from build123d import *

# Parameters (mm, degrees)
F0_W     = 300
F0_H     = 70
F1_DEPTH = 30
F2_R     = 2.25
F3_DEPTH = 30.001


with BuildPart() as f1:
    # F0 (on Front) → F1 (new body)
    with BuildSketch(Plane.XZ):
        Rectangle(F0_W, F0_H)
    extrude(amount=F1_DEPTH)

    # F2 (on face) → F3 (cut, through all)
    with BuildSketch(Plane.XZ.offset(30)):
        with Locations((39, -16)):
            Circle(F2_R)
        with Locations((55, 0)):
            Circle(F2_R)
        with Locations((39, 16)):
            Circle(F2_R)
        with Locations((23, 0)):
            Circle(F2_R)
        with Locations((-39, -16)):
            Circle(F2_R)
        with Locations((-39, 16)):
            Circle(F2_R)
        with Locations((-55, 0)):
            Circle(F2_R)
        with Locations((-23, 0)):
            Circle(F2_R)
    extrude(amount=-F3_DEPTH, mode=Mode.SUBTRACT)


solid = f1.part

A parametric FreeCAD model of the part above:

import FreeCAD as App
import Part
import Sketcher

V = App.Vector
Q = App.Units.Quantity


def add_polygon(sketch, points):
    """Adds a closed chain of lines whose ends are joined by coincident constraints."""
    first, n = sketch.GeometryCount, len(points)
    for a, b in zip(points, points[1:] + points[:1]):
        sketch.addGeometry(Part.LineSegment(App.Vector(*a, 0), App.Vector(*b, 0)), False)
    for i in range(n):
        sketch.addConstraint(Sketcher.Constraint("Coincident", first + i, 2, first + (i + 1) % n, 1))

doc = App.newDocument("Part")
body = doc.addObject("PartDesign::Body", "Body")

# Sketch on XZ plane
sketch1 = body.newObject("Sketcher::SketchObject", "Sketch")
sketch1.AttachmentSupport = (doc.getObject("XZ_Plane"), [""])
sketch1.MapMode = "FlatFace"
add_polygon(sketch1, [(-150, 35), (-150, -35), (150, -35), (150, 35)])  # lines 0-3
sketch1.addConstraint([
    Sketcher.Constraint("Vertical", 0),
    Sketcher.Constraint("Horizontal", 1),
    Sketcher.Constraint("Vertical", 2),
    Sketcher.Constraint("Horizontal", 3),
    Sketcher.Constraint("Symmetric", 0, 2, 2, 2, -1, 1),
    Sketcher.Constraint("DistanceX", 1, 1, 1, 2, Q("300 mm")),
    Sketcher.Constraint("DistanceY", 0, 2, 0, 1, Q("70 mm")),
])
pad1 = body.newObject("PartDesign::Pad", "Pad")
pad1.Profile = sketch1
pad1.Length = 30

# Sketch on XZ plane
sketch2 = body.newObject("Sketcher::SketchObject", "Sketch001")
sketch2.AttachmentSupport = (doc.getObject("XZ_Plane"), [""])
sketch2.MapMode = "FlatFace"
sketch2.AttachmentOffset = App.Placement(V(0, 0, 30), App.Rotation())
sketch2.addGeometry([
    Part.Circle(V(39, -16, 0), V(0, 0, 1), 2.25),  # 0
    Part.Circle(V(55, 0, 0), V(0, 0, 1), 2.25),  # 1
    Part.Circle(V(39, 16, 0), V(0, 0, 1), 2.25),  # 2
    Part.Circle(V(23, 0, 0), V(0, 0, 1), 2.25),  # 3
    Part.Circle(V(-39, -16, 0), V(0, 0, 1), 2.25),  # 4
    Part.Circle(V(-39, 16, 0), V(0, 0, 1), 2.25),  # 5
    Part.Circle(V(-55, 0, 0), V(0, 0, 1), 2.25),  # 6
    Part.Circle(V(-23, 0, 0), V(0, 0, 1), 2.25),  # 7
], False)
sketch2.addConstraint([
    Sketcher.Constraint("Equal", 0, 1),
    Sketcher.Constraint("Equal", 1, 2),
    Sketcher.Constraint("Equal", 2, 3),
    Sketcher.Constraint("Equal", 3, 4),
    Sketcher.Constraint("Equal", 4, 5),
    Sketcher.Constraint("Equal", 5, 6),
    Sketcher.Constraint("Equal", 6, 7),
    Sketcher.Constraint("Symmetric", 2, 3, 4, 3, -1, 1),
    Sketcher.Constraint("Symmetric", 0, 3, 5, 3, -1, 1),
    Sketcher.Constraint("Symmetric", 1, 3, 6, 3, -1, 1),
    Sketcher.Constraint("Symmetric", 3, 3, 7, 3, -1, 1),
    Sketcher.Constraint("Symmetric", 0, 3, 4, 3, -2),
    Sketcher.Constraint("PointOnObject", 1, 3, -1),
    Sketcher.Constraint("PointOnObject", 3, 3, -1),
    Sketcher.Constraint("Diameter", 0, Q("4.5 mm")),
    Sketcher.Constraint("DistanceX", -1, 1, 0, 3, Q("39 mm")),
    Sketcher.Constraint("DistanceY", 0, 3, -1, 1, Q("16 mm")),
    Sketcher.Constraint("DistanceX", -1, 1, 1, 3, Q("55 mm")),
    Sketcher.Constraint("DistanceX", -1, 1, 3, 3, Q("23 mm")),
])
pocket1 = body.newObject("PartDesign::Pocket", "Pocket")
pocket1.Profile = sketch2
pocket1.Type = "ThroughAll"

doc.recompute()
